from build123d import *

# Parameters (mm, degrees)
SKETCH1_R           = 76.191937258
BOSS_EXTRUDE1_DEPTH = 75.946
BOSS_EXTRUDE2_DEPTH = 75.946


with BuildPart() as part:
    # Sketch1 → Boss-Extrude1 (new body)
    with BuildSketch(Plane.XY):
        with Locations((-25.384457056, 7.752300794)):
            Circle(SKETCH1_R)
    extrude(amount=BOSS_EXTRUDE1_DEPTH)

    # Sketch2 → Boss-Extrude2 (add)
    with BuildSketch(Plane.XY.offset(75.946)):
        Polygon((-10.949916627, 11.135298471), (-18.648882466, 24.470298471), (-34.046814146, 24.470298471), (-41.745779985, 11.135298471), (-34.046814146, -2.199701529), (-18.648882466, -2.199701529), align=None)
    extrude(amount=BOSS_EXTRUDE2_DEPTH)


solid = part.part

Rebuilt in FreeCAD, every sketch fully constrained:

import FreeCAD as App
import Part
import Sketcher
Q = App.Units.Quantity


def add_polygon(sketch, points):
    """Adds a closed chain of lines whose ends are joined by coincident constraints."""
    first, n = sketch.GeometryCount, len(points)
    for a, b in zip(points, points[1:] + points[:1]):
        sketch.addGeometry(Part.LineSegment(App.Vector(*a, 0), App.Vector(*b, 0)), False)
    for i in range(n):
        sketch.addConstraint(Sketcher.Constraint("Coincident", first + i, 2, first + (i + 1) % n, 1))

doc = App.newDocument("Part")
body = doc.addObject("PartDesign::Body", "Body")

sketch1 = doc.addObject("Sketcher::SketchObject", "Sketch")
body.addObject(sketch1)
sketch1.AttachmentSupport = (doc.XY_Plane, [""])
sketch1.MapMode = "FlatFace"
sketch1.addGeometry(Part.Circle(App.Vector(-25.384457, 7.752301, 0), App.Vector(0, 0, 1), 76.191937), False)
sketch1.addConstraint(Sketcher.Constraint("Diameter", 0, Q("152.383875 mm")))
sketch1.addConstraint(Sketcher.Constraint("DistanceY", -1, 1, 0, 3, Q("7.752301 mm")))
sketch1.addConstraint(Sketcher.Constraint("DistanceX", 0, 3, -1, 1, Q("25.384457 mm")))
pad1 = doc.addObject("PartDesign::Pad", "Pad")
body.addObject(pad1)
pad1.Profile = sketch1
pad1.Length = Q("2.99 in")

sketch2 = doc.addObject("Sketcher::SketchObject", "Sketch001")
body.addObject(sketch2)
sketch2.AttachmentSupport = (doc.XY_Plane, [""])
sketch2.MapMode = "FlatFace"
sketch2.AttachmentOffset = App.Placement(App.Vector(0, 0, 2.99 * 25.4), App.Rotation())
add_polygon(sketch2, [(-10.949917, 11.135298), (-18.648882, 24.470298), (-34.046814, 24.470298), (-41.74578, 11.135298), (-34.046814, -2.199702), (-18.648882, -2.199702)])
sketch2.addConstraint(Sketcher.Constraint("Horizontal", 1))
sketch2.addConstraint(Sketcher.Constraint("Horizontal", 4))
sketch2.addConstraint(Sketcher.Constraint("Parallel", 0, 3))
sketch2.addConstraint(Sketcher.Constraint("Parallel", 2, 5))
sketch2.addConstraint(Sketcher.Constraint("Horizontal", 2, 2, 5, 2))
sketch2.addConstraint(Sketcher.Constraint("Vertical", 1, 2, 3, 2))
sketch2.addConstraint(Sketcher.Constraint("Vertical", 0, 2, 4, 2))
sketch2.addConstraint(Sketcher.Constraint("Angle", 0, Q("120 deg")))
sketch2.addConstraint(Sketcher.Constraint("DistanceY", 3, 2, 1, 2, Q("1.05 in")))
sketch2.addConstraint(Sketcher.Constraint("DistanceX", 1, 2, 1, 1, Q("15.397932 mm")))
sketch2.addConstraint(Sketcher.Constraint("DistanceY", -1, 1, 0, 2, Q("24.470298 mm")))
sketch2.addConstraint(Sketcher.Constraint("DistanceX", 2, 2, -1, 1, Q("41.74578 mm")))
pad2 = doc.addObject("PartDesign::Pad", "Pad001")
body.addObject(pad2)
pad2.Profile = sketch2
pad2.Length = Q("2.99 in")

doc.recompute()
